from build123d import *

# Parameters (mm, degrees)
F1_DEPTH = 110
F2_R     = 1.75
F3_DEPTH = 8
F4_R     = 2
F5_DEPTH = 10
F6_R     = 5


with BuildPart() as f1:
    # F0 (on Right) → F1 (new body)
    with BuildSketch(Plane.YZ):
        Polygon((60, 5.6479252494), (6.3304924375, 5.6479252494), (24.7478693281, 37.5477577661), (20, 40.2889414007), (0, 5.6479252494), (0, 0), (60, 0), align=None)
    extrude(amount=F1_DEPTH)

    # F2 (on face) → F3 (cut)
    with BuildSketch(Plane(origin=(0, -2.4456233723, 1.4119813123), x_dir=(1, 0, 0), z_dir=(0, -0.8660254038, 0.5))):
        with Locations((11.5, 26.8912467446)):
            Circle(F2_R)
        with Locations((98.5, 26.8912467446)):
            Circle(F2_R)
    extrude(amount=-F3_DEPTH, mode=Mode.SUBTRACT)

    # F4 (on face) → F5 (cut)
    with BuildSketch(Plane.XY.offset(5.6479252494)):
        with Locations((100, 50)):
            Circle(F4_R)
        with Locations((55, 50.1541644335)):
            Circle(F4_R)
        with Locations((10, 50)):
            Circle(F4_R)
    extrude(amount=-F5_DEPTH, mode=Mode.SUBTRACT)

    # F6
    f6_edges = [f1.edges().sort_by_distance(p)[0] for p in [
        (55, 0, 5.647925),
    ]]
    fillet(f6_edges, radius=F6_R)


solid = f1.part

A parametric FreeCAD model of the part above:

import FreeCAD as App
import Part
import Sketcher
from FreeCAD import Vector
Q = App.Units.Quantity


def edges_at(feature, points):
    """Names of the edges that pass closest to the given points."""
    edges = feature.Shape.Edges
    near = lambda p: min(range(len(edges)), key=lambda i: edges[i].distToShape(Part.Vertex(*p))[0])
    return sorted({f"Edge{near(p) + 1}" for p in points})

doc = App.newDocument("Part")
body = doc.addObject("PartDesign::Body", "Body")

# Sketch on YZ plane
sketch1 = body.newObject("Sketcher::SketchObject", "Sketch")
sketch1.AttachmentSupport = (doc.getObject("YZ_Plane"), [""])
sketch1.MapMode = "FlatFace"
sketch1.addGeometry([
    Part.LineSegment(Vector(60, 6, 0), Vector(6, 6, 0)),  # 0
    Part.LineSegment(Vector(6, 6, 0), Vector(25, 38, 0)),  # 1
    Part.LineSegment(Vector(25, 38, 0), Vector(20, 40, 0)),  # 2
    Part.LineSegment(Vector(20, 40, 0), Vector(0, 6, 0)),  # 3
    Part.LineSegment(Vector(0, 6, 0), Vector(0, 0, 0)),  # 4
    Part.LineSegment(Vector(0, 0, 0), Vector(60, 0, 0)),  # 5
    Part.LineSegment(Vector(60, 0, 0), Vector(60, 6, 0)),  # 6
], False)
sketch1.addConstraint([
    Sketcher.Constraint("Coincident", 0, 2, 1, 1),
    Sketcher.Constraint("Coincident", 1, 2, 2, 1),
    Sketcher.Constraint("Coincident", 2, 2, 3, 1),
    Sketcher.Constraint("Coincident", 3, 2, 4, 1),
    Sketcher.Constraint("Coincident", 4, 2, 5, 1),
    Sketcher.Constraint("Coincident", 5, 2, 6, 1),
    Sketcher.Constraint("Coincident", 6, 2, 0, 1),
    Sketcher.Constraint("Horizontal", 0),
    Sketcher.Constraint("Vertical", 4),
    Sketcher.Constraint("Horizontal", 5),
    Sketcher.Constraint("Vertical", 6),
    Sketcher.Constraint("Coincident", 4, 2, -1, 1),
    Sketcher.Constraint("Perpendicular", 1, 2),
    Sketcher.Constraint("Perpendicular", 2, 3),
    Sketcher.Constraint("Horizontal", 0, 2, 3, 2),
    Sketcher.Constraint("DistanceX", 5, 1, 5, 2, Q("60 mm")),
    Sketcher.Constraint("Angle", 1, Q("60 deg")),
    Sketcher.Constraint("Distance", 3, Q("40 mm")),
    Sketcher.Constraint("DistanceX", 0, 2, 0, 1, Q("53.669508 mm")),
    Sketcher.Constraint("DistanceY", 4, 2, 4, 1, Q("5.647925 mm")),
])
pad1 = body.newObject("PartDesign::Pad", "Pad")
pad1.Profile = sketch1
pad1.Length = 110

# Sketch on an angled plane
sketch2 = body.newObject("Sketcher::SketchObject", "Sketch001")
sketch2.Placement = App.Placement(Vector(0, -2.445623, 1.411981), App.Rotation(Vector(1, 0, 0), Vector(0, 0.5, 0.866025404), Vector(0, -0.866025404, 0.5), "ZXY"))
sketch2.addGeometry([
    Part.Circle(Vector(11.5, 26.9, 0), Vector(0, 0, 1), 1.8),
    Part.Circle(Vector(98.5, 26.9, 0), Vector(0, 0, 1), 1.8),
], False)
sketch2.addConstraint([
    Sketcher.Constraint("Equal", 0, 1),
    Sketcher.Constraint("Horizontal", 0, 3, 1, 3),
    Sketcher.Constraint("Diameter", 0, Q("3.5 mm")),
    Sketcher.Constraint("DistanceX", 0, 3, 1, 3, Q("87 mm")),
    Sketcher.Constraint("DistanceX", -1, 1, 0, 3, Q("11.5 mm")),
    Sketcher.Constraint("DistanceY", -1, 1, 0, 3, Q("26.891247 mm")),
])
pocket1 = body.newObject("PartDesign::Pocket", "Pocket")
pocket1.Profile = sketch2
pocket1.Length = 8

# Sketch on XY plane
sketch3 = body.newObject("Sketcher::SketchObject", "Sketch002")
sketch3.AttachmentSupport = (doc.getObject("XY_Plane"), [""])
sketch3.MapMode = "FlatFace"
sketch3.AttachmentOffset = App.Placement(Vector(0, 0, 5.647925), App.Rotation())
sketch3.addGeometry([
    Part.Circle(Vector(100, 50, 0), Vector(0, 0, 1), 2),
    Part.Circle(Vector(55, 50.2, 0), Vector(0, 0, 1), 2),
    Part.Circle(Vector(10, 50, 0), Vector(0, 0, 1), 2),
], False)
sketch3.addConstraint([
    Sketcher.Constraint("Equal", 0, 1),
    Sketcher.Constraint("Equal", 1, 2),
    Sketcher.Constraint("Horizontal", 0, 3, 2, 3),
    Sketcher.Constraint("Diameter", 0, Q("4 mm")),
    Sketcher.Constraint("DistanceX", -1, 1, 0, 3, Q("100 mm")),
    Sketcher.Constraint("DistanceY", -1, 1, 0, 3, Q("50 mm")),
    Sketcher.Constraint("DistanceX", -1, 1, 1, 3, Q("55 mm")),
    Sketcher.Constraint("DistanceX", -1, 1, 2, 3, Q("10 mm")),
    Sketcher.Constraint("DistanceY", -1, 1, 1, 3, Q("50.154164 mm")),
])
pocket2 = body.newObject("PartDesign::Pocket", "Pocket001")
pocket2.Profile = sketch3
pocket2.Length = 10
doc.recompute()

fillet = body.newObject("PartDesign::Fillet", "Fillet")
fillet.Base = (pocket2, edges_at(pocket2, [(55, 0, 5.648)]))
fillet.Radius = 5

doc.recompute()
